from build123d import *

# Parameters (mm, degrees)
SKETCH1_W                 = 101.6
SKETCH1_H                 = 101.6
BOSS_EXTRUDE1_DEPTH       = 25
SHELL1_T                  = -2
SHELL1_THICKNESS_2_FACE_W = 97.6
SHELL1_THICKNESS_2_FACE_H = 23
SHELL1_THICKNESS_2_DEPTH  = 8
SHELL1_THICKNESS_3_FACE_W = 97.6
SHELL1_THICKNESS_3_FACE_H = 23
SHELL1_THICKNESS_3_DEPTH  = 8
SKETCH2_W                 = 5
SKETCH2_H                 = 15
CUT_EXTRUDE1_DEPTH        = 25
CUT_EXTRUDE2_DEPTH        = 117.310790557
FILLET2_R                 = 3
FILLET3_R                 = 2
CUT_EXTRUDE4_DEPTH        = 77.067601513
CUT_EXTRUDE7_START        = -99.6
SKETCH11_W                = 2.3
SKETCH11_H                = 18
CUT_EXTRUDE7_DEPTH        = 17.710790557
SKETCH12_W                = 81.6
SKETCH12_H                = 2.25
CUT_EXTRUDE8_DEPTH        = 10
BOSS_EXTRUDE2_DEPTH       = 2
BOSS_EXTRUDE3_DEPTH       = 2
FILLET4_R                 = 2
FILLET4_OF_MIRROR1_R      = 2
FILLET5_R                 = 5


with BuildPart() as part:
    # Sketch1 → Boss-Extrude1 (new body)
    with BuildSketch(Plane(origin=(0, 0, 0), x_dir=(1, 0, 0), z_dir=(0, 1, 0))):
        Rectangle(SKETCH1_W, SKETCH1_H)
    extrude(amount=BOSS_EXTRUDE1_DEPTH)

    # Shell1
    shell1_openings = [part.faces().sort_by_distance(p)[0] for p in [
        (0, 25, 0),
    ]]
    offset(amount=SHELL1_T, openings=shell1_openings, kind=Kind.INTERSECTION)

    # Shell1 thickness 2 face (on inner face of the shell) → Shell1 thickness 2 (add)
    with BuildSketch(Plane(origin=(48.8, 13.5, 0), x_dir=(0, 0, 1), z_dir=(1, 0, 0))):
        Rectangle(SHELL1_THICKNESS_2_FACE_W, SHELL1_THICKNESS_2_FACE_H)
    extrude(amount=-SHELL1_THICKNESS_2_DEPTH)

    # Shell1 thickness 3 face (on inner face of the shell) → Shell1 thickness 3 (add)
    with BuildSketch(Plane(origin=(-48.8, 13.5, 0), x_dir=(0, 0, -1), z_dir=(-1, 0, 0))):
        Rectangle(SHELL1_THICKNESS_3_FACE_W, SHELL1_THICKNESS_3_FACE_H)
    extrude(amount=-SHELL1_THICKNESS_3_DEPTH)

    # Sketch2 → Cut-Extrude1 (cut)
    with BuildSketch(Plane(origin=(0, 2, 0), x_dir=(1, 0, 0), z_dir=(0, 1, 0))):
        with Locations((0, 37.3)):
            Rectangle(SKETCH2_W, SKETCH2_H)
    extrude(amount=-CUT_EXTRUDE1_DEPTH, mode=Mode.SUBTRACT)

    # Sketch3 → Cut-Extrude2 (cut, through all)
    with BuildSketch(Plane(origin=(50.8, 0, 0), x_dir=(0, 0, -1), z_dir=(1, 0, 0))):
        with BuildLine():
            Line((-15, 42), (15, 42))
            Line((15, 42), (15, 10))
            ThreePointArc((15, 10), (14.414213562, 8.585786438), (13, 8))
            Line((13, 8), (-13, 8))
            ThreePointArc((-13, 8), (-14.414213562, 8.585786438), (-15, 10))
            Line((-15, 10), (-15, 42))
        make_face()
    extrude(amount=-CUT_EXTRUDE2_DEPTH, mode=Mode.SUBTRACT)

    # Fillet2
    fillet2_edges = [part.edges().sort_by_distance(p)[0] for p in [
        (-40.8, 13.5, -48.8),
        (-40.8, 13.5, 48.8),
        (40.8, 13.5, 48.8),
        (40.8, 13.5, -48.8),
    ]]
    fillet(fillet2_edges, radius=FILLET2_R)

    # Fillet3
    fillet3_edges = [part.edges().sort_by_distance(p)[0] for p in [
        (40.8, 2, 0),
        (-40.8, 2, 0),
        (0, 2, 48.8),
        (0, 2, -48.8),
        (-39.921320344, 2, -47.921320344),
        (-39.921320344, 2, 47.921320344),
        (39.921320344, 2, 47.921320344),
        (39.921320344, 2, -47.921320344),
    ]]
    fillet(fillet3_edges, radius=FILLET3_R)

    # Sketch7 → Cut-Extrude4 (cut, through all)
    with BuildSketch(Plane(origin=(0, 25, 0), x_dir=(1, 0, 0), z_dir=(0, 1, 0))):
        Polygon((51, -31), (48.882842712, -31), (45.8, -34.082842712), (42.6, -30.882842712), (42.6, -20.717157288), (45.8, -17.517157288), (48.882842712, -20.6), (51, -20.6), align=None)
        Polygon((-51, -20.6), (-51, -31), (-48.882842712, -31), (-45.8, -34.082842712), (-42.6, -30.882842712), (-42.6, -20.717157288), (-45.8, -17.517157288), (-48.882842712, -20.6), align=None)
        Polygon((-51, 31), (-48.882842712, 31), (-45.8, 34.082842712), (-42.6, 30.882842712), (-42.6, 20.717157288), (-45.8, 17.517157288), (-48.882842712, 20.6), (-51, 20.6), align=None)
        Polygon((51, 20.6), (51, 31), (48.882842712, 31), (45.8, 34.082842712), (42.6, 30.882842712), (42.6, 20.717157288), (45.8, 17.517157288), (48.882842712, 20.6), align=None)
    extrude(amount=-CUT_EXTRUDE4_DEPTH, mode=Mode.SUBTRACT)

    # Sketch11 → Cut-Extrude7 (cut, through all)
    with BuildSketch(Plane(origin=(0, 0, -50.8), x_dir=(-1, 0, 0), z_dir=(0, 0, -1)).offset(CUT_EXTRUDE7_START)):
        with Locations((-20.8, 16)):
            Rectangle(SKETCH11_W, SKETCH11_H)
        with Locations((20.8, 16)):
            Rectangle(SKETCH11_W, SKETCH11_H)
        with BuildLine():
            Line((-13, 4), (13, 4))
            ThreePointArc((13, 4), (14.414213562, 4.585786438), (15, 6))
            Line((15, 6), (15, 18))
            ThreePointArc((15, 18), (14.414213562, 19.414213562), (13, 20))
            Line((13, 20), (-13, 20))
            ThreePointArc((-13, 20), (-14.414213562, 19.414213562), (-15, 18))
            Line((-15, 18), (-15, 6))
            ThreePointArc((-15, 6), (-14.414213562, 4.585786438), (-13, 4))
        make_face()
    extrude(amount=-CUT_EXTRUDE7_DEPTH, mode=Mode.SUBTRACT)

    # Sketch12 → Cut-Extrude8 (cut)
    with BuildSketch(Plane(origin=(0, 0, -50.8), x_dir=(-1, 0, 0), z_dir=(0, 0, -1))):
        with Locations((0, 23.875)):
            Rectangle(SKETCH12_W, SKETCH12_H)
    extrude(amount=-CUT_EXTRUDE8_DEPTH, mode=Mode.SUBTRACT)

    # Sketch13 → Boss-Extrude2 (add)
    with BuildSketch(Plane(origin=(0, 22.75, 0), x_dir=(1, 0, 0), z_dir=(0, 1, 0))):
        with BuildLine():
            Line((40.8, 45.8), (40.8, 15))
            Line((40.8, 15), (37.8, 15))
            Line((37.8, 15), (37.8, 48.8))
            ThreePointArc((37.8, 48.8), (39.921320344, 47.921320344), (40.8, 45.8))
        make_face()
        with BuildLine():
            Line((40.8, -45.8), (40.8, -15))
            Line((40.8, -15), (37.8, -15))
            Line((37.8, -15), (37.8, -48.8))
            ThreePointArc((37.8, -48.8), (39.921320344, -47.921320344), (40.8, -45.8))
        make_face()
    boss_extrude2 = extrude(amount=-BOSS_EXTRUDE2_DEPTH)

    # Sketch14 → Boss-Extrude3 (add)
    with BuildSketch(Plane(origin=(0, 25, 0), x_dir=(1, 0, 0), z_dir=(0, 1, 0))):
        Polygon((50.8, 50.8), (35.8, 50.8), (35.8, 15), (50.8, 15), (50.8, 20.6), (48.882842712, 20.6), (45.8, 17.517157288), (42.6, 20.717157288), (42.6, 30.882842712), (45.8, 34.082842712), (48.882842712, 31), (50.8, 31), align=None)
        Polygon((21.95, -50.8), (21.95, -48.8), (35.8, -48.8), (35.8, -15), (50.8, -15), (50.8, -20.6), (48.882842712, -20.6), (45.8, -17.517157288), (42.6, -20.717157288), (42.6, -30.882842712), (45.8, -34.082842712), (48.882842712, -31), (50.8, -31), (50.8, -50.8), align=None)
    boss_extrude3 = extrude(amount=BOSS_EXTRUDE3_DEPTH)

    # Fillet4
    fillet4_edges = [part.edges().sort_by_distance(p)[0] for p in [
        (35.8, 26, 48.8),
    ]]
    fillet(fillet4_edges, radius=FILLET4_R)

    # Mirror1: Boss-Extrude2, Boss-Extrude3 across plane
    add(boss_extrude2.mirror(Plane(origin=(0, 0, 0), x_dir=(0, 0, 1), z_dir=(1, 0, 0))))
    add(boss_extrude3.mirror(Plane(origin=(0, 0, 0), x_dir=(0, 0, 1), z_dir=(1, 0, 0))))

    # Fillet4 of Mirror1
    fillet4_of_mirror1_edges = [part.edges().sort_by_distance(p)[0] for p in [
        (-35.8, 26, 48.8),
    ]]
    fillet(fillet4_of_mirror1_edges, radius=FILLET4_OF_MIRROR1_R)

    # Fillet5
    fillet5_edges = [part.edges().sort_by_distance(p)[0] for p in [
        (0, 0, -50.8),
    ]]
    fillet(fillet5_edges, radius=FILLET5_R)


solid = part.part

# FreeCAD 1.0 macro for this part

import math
import FreeCAD as App
import Part
import Sketcher
Q = App.Units.Quantity


def edges_at(feature, points):
    """Names of the edges that pass closest to the given points."""
    edges = feature.Shape.Edges
    near = lambda p: min(range(len(edges)), key=lambda i: edges[i].distToShape(Part.Vertex(*p))[0])
    return sorted({f"Edge{near(p) + 1}" for p in points})


def faces_at(feature, points):
    """Names of the faces that lie closest to the given points."""
    faces = feature.Shape.Faces
    near = lambda p: min(range(len(faces)), key=lambda i: faces[i].distToShape(Part.Vertex(*p))[0])
    return sorted({f"Face{near(p) + 1}" for p in points})

doc = App.newDocument("Part")
params = doc.addObject("Spreadsheet::Sheet", "Params")
for row, (alias, value) in enumerate([
    ("sketch1_width", "101.6 mm"),
    ("pad1_length", "25 mm"),
    ("thickness_wall", "2 mm"),
    ("sketch2_width", "23 mm"),
    ("sketch2_height", "97.6 mm"),
    ("pad2_length", "8 mm"),
    ("sketch3_width", "23 mm"),
    ("sketch3_height", "97.6 mm"),
    ("pad3_length", "8 mm"),
    ("sketch4_width", "5 mm"),
    ("sketch4_height", "15 mm"),
    ("pocket1_length", "25 mm"),
    ("sketch5_radius", "2 mm"),
    ("sketch5_width", "32 mm"),
    ("sketch5_height", "30 mm"),
    ("fillet_radius", "3 mm"),
    ("fillet2_radius", "2 mm"),
    ("sketch6_height", "10.4 mm"),
    ("sketch7_radius", "2 mm"),
    ("sketch7_width", "26 mm"),
    ("sketch7_height", "18 mm"),
    ("sketch7_height2", "12 mm"),
    ("sketch7_width2", "2.3 mm"),
    ("sketch8_width", "81.6 mm"),
    ("sketch8_height", "2.25 mm"),
    ("pocket5_length", "10 mm"),
    ("sketch9_radius", "3 mm"),
    ("sketch9_height", "30.8 mm"),
    ("pad4_length", "2 mm"),
    ("sketch10_width", "15 mm"),
    ("sketch10_height", "2 mm"),
    ("sketch10_height2", "35.8 mm"),
    ("sketch10_height3", "5.6 mm"),
    ("sketch10_height4", "19.8 mm"),
    ("pad5_length", "2 mm"),
    ("fillet3_radius", "2 mm"),
    ("fillet4_radius", "2 mm"),
    ("fillet5_radius", "5 mm"),
], start=1):
    params.set(f"A{row}", alias)
    params.set(f"B{row}", "=" + value)
    params.setAlias(f"B{row}", alias)

body = doc.addObject("PartDesign::Body", "Body")

# Sketch on XZ plane
sketch1 = body.newObject("Sketcher::SketchObject", "Sketch")
sketch1.AttachmentSupport = (doc.getObject("XZ_Plane"), [""])
sketch1.MapMode = "FlatFace"
sketch1.addGeometry([
    Part.LineSegment(App.Vector(-50.8, -50.8, 0), App.Vector(-50.8, 50.8, 0)),
    Part.LineSegment(App.Vector(-50.8, 50.8, 0), App.Vector(50.8, 50.8, 0)),
    Part.LineSegment(App.Vector(50.8, 50.8, 0), App.Vector(50.8, -50.8, 0)),
    Part.LineSegment(App.Vector(50.8, -50.8, 0), App.Vector(-50.8, -50.8, 0)),
], False)
sketch1.addConstraint([
    Sketcher.Constraint("Coincident", 0, 2, 1, 1),
    Sketcher.Constraint("Coincident", 1, 2, 2, 1),
    Sketcher.Constraint("Coincident", 2, 2, 3, 1),
    Sketcher.Constraint("Coincident", 3, 2, 0, 1),
    Sketcher.Constraint("Vertical", 0),
    Sketcher.Constraint("Horizontal", 1),
    Sketcher.Constraint("Vertical", 2),
    Sketcher.Constraint("Horizontal", 3),
    Sketcher.Constraint("Symmetric", 0, 2, 2, 2, -1, 1),
    Sketcher.Constraint("Equal", 3, 0),
    Sketcher.Constraint("DistanceX", 1, 1, 1, 2, Q("101.6 mm")),
])
sketch1.setExpression("Constraints[10]", "Params.sketch1_width")
pad1 = body.newObject("PartDesign::Pad", "Pad")
pad1.Profile = sketch1
pad1.setExpression("Length", "Params.pad1_length")
pad1.Reversed = True
doc.recompute()

thickness = body.newObject("PartDesign::Thickness", "Thickness")
thickness.Base = (pad1, faces_at(pad1, [(0, 25, 0)]))
thickness.setExpression("Value", "Params.thickness_wall")
thickness.Reversed = True
thickness.Join = "Intersection"

# Sketch on YZ plane
sketch2 = body.newObject("Sketcher::SketchObject", "Sketch001")
sketch2.AttachmentSupport = (doc.getObject("YZ_Plane"), [""])
sketch2.MapMode = "FlatFace"
sketch2.AttachmentOffset = App.Placement(App.Vector(0, 0, 48.8), App.Rotation())
sketch2.addGeometry([
    Part.LineSegment(App.Vector(2, -48.8, 0), App.Vector(25, -48.8, 0)),
    Part.LineSegment(App.Vector(25, -48.8, 0), App.Vector(25, 48.8, 0)),
    Part.LineSegment(App.Vector(25, 48.8, 0), App.Vector(2, 48.8, 0)),
    Part.LineSegment(App.Vector(2, 48.8, 0), App.Vector(2, -48.8, 0)),
], False)
sketch2.addConstraint([
    Sketcher.Constraint("Coincident", 0, 2, 1, 1),
    Sketcher.Constraint("Coincident", 1, 2, 2, 1),
    Sketcher.Constraint("Coincident", 2, 2, 3, 1),
    Sketcher.Constraint("Coincident", 3, 2, 0, 1),
    Sketcher.Constraint("Horizontal", 0),
    Sketcher.Constraint("Vertical", 1),
    Sketcher.Constraint("Horizontal", 2),
    Sketcher.Constraint("Vertical", 3),
    Sketcher.Constraint("DistanceX", 0, 1, 0, 2, Q("23 mm")),
    Sketcher.Constraint("DistanceY", 1, 1, 1, 2, Q("97.6 mm")),
    Sketcher.Constraint("DistanceX", -1, 1, 0, 2, Q("25 mm")),
    Sketcher.Constraint("DistanceY", 0, 2, -1, 1, Q("48.8 mm")),
])
sketch2.setExpression("Constraints[8]", "Params.sketch2_width")
sketch2.setExpression("Constraints[9]", "Params.sketch2_height")
pad2 = body.newObject("PartDesign::Pad", "Pad001")
pad2.Profile = sketch2
pad2.setExpression("Length", "Params.pad2_length")
pad2.Reversed = True

# Sketch on YZ plane
sketch3 = body.newObject("Sketcher::SketchObject", "Sketch002")
sketch3.AttachmentSupport = (doc.getObject("YZ_Plane"), [""])
sketch3.MapMode = "FlatFace"
sketch3.AttachmentOffset = App.Placement(App.Vector(0, 0, -48.8), App.Rotation())
sketch3.addGeometry([
    Part.LineSegment(App.Vector(2, 48.8, 0), App.Vector(25, 48.8, 0)),
    Part.LineSegment(App.Vector(25, 48.8, 0), App.Vector(25, -48.8, 0)),
    Part.LineSegment(App.Vector(25, -48.8, 0), App.Vector(2, -48.8, 0)),
    Part.LineSegment(App.Vector(2, -48.8, 0), App.Vector(2, 48.8, 0)),
], False)
sketch3.addConstraint([
    Sketcher.Constraint("Coincident", 0, 2, 1, 1),
    Sketcher.Constraint("Coincident", 1, 2, 2, 1),
    Sketcher.Constraint("Coincident", 2, 2, 3, 1),
    Sketcher.Constraint("Coincident", 3, 2, 0, 1),
    Sketcher.Constraint("Horizontal", 0),
    Sketcher.Constraint("Vertical", 1),
    Sketcher.Constraint("Horizontal", 2),
    Sketcher.Constraint("Vertical", 3),
    Sketcher.Constraint("DistanceX", 0, 1, 0, 2, Q("23 mm")),
    Sketcher.Constraint("DistanceY", 1, 2, 1, 1, Q("97.6 mm")),
    Sketcher.Constraint("DistanceX", -1, 1, 0, 2, Q("25 mm")),
    Sketcher.Constraint("DistanceY", -1, 1, 0, 2, Q("48.8 mm")),
])
sketch3.setExpression("Constraints[8]", "Params.sketch3_width")
sketch3.setExpression("Constraints[9]", "Params.sketch3_height")
pad3 = body.newObject("PartDesign::Pad", "Pad002")
pad3.Profile = sketch3
pad3.setExpression("Length", "Params.pad3_length")

# Sketch on XZ plane
sketch4 = body.newObject("Sketcher::SketchObject", "Sketch003")
sketch4.AttachmentSupport = (doc.getObject("XZ_Plane"), [""])
sketch4.MapMode = "FlatFace"
sketch4.AttachmentOffset = App.Placement(App.Vector(0, 0, -2), App.Rotation())
sketch4.addGeometry([
    Part.LineSegment(App.Vector(-2.5, -44.8, 0), App.Vector(-2.5, -29.8, 0)),
    Part.LineSegment(App.Vector(-2.5, -29.8, 0), App.Vector(2.5, -29.8, 0)),
    Part.LineSegment(App.Vector(2.5, -29.8, 0), App.Vector(2.5, -44.8, 0)),
    Part.LineSegment(App.Vector(2.5, -44.8, 0), App.Vector(-2.5, -44.8, 0)),
], False)
sketch4.addConstraint([
    Sketcher.Constraint("Coincident", 0, 2, 1, 1),
    Sketcher.Constraint("Coincident", 1, 2, 2, 1),
    Sketcher.Constraint("Coincident", 2, 2, 3, 1),
    Sketcher.Constraint("Coincident", 3, 2, 0, 1),
    Sketcher.Constraint("Vertical", 0),
    Sketcher.Constraint("Horizontal", 1),
    Sketcher.Constraint("Vertical", 2),
    Sketcher.Constraint("Horizontal", 3),
    Sketcher.Constraint("DistanceX", 1, 1, 1, 2, Q("5 mm")),
    Sketcher.Constraint("DistanceY", 0, 1, 0, 2, Q("15 mm")),
    Sketcher.Constraint("DistanceX", 0, 2, -1, 1, Q("2.5 mm")),
    Sketcher.Constraint("DistanceY", 0, 2, -1, 1, Q("29.8 mm")),
])
sketch4.setExpression("Constraints[8]", "Params.sketch4_width")
sketch4.setExpression("Constraints[9]", "Params.sketch4_height")
pocket1 = body.newObject("PartDesign::Pocket", "Pocket")
pocket1.Profile = sketch4
pocket1.setExpression("Length", "Params.pocket1_length")
pocket1.Reversed = True

# Sketch on YZ plane
sketch5 = body.newObject("Sketcher::SketchObject", "Sketch004")
sketch5.AttachmentSupport = (doc.getObject("YZ_Plane"), [""])
sketch5.MapMode = "FlatFace"
sketch5.AttachmentOffset = App.Placement(App.Vector(0, 0, 50.8), App.Rotation())
sketch5.addGeometry([
    Part.LineSegment(App.Vector(42, -15, 0), App.Vector(42, 15, 0)),  # 0
    Part.LineSegment(App.Vector(42, 15, 0), App.Vector(10, 15, 0)),  # 1
    Part.ArcOfCircle(Part.Circle(App.Vector(10, 13, 0), App.Vector(0, 0, 1), 2), math.radians(90), math.radians(180)),  # 2
    Part.LineSegment(App.Vector(8, 13, 0), App.Vector(8, -13, 0)),  # 3
    Part.ArcOfCircle(Part.Circle(App.Vector(10, -13, 0), App.Vector(0, 0, 1), 2), math.radians(-180), math.radians(-90)),  # 4
    Part.LineSegment(App.Vector(10, -15, 0), App.Vector(42, -15, 0)),  # 5
], False)
sketch5.addConstraint([
    Sketcher.Constraint("Coincident", 0, 2, 1, 1),
    Sketcher.Constraint("Tangent", 1, 2, 2, 1),
    Sketcher.Constraint("Tangent", 2, 2, 3, 1),
    Sketcher.Constraint("Tangent", 3, 2, 4, 1),
    Sketcher.Constraint("Tangent", 4, 2, 5, 1),
    Sketcher.Constraint("Coincident", 5, 2, 0, 1),
    Sketcher.Constraint("Vertical", 0),
    Sketcher.Constraint("Horizontal", 1),
    Sketcher.Constraint("Vertical", 3),
    Sketcher.Constraint("Horizontal", 5),
    Sketcher.Constraint("Equal", 2, 4),
    Sketcher.Constraint("Radius", 2, Q("2 mm")),
    Sketcher.Constraint("DistanceX", 1, 2, 1, 1, Q("32 mm")),
    Sketcher.Constraint("DistanceY", 0, 1, 0, 2, Q("30 mm")),
    Sketcher.Constraint("DistanceX", -1, 1, 2, 3, Q("10 mm")),
    Sketcher.Constraint("DistanceY", -1, 1, 2, 3, Q("13 mm")),
])
sketch5.setExpression("Constraints[11]", "Params.sketch5_radius")
sketch5.setExpression("Constraints[12]", "Params.sketch5_width")
sketch5.setExpression("Constraints[13]", "Params.sketch5_height")
pocket2 = body.newObject("PartDesign::Pocket", "Pocket001")
pocket2.Profile = sketch5
pocket2.Type = "ThroughAll"
doc.recompute()

fillet = body.newObject("PartDesign::Fillet", "Fillet")
fillet.Base = (pocket2, edges_at(pocket2, [
    (-40.8, 13.5, -48.8),
    (-40.8, 13.5, 48.8),
    (40.8, 13.5, 48.8),
    (40.8, 13.5, -48.8),
]))
fillet.setExpression("Radius", "Params.fillet_radius")
doc.recompute()

fillet2 = body.newObject("PartDesign::Fillet", "Fillet001")
fillet2.Base = (fillet, edges_at(fillet, [
    (40.8, 2, 0),
    (-40.8, 2, 0),
    (0, 2, 48.8),
    (0, 2, -48.8),
    (-39.921, 2, -47.921),
    (-39.921, 2, 47.921),
    (39.921, 2, 47.921),
    (39.921, 2, -47.921),
]))
fillet2.setExpression("Radius", "Params.fillet2_radius")

# Sketch on XZ plane
sketch6 = body.newObject("Sketcher::SketchObject", "Sketch005")
sketch6.AttachmentSupport = (doc.getObject("XZ_Plane"), [""])
sketch6.MapMode = "FlatFace"
sketch6.AttachmentOffset = App.Placement(App.Vector(0, 0, -25), App.Rotation())
sketch6.addGeometry([
    Part.LineSegment(App.Vector(48.882843, 31, 0), App.Vector(51, 31, 0)),  # 0
    Part.LineSegment(App.Vector(51, 31, 0), App.Vector(51, 20.6, 0)),  # 1
    Part.LineSegment(App.Vector(51, 20.6, 0), App.Vector(48.882843, 20.6, 0)),  # 2
    Part.LineSegment(App.Vector(48.882843, 20.6, 0), App.Vector(45.8, 17.517157, 0)),  # 3
    Part.LineSegment(App.Vector(45.8, 17.517157, 0), App.Vector(42.6, 20.717157, 0)),  # 4
    Part.LineSegment(App.Vector(42.6, 20.717157, 0), App.Vector(42.6, 30.882843, 0)),  # 5
    Part.LineSegment(App.Vector(42.6, 30.882843, 0), App.Vector(45.8, 34.082843, 0)),  # 6
    Part.LineSegment(App.Vector(45.8, 34.082843, 0), App.Vector(48.882843, 31, 0)),  # 7
    Part.LineSegment(App.Vector(-51, 20.6, 0), App.Vector(-51, 31, 0)),  # 8
    Part.LineSegment(App.Vector(-51, 31, 0), App.Vector(-48.882843, 31, 0)),  # 9
    Part.LineSegment(App.Vector(-48.882843, 31, 0), App.Vector(-45.8, 34.082843, 0)),  # 10
    Part.LineSegment(App.Vector(-45.8, 34.082843, 0), App.Vector(-42.6, 30.882843, 0)),  # 11
    Part.LineSegment(App.Vector(-42.6, 30.882843, 0), App.Vector(-42.6, 20.717157, 0)),  # 12
    Part.LineSegment(App.Vector(-42.6, 20.717157, 0), App.Vector(-45.8, 17.517157, 0)),  # 13
    Part.LineSegment(App.Vector(-45.8, 17.517157, 0), App.Vector(-48.882843, 20.6, 0)),  # 14
    Part.LineSegment(App.Vector(-48.882843, 20.6, 0), App.Vector(-51, 20.6, 0)),  # 15
    Part.LineSegment(App.Vector(-48.882843, -31, 0), App.Vector(-51, -31, 0)),  # 16
    Part.LineSegment(App.Vector(-51, -31, 0), App.Vector(-51, -20.6, 0)),  # 17
    Part.LineSegment(App.Vector(-51, -20.6, 0), App.Vector(-48.882843, -20.6, 0)),  # 18
    Part.LineSegment(App.Vector(-48.882843, -20.6, 0), App.Vector(-45.8, -17.517157, 0)),  # 19
    Part.LineSegment(App.Vector(-45.8, -17.517157, 0), App.Vector(-42.6, -20.717157, 0)),  # 20
    Part.LineSegment(App.Vector(-42.6, -20.717157, 0), App.Vector(-42.6, -30.882843, 0)),  # 21
    Part.LineSegment(App.Vector(-42.6, -30.882843, 0), App.Vector(-45.8, -34.082843, 0)),  # 22
    Part.LineSegment(App.Vector(-45.8, -34.082843, 0), App.Vector(-48.882843, -31, 0)),  # 23
    Part.LineSegment(App.Vector(51, -20.6, 0), App.Vector(51, -31, 0)),  # 24
    Part.LineSegment(App.Vector(51, -31, 0), App.Vector(48.882843, -31, 0)),  # 25
    Part.LineSegment(App.Vector(48.882843, -31, 0), App.Vector(45.8, -34.082843, 0)),  # 26
    Part.LineSegment(App.Vector(45.8, -34.082843, 0), App.Vector(42.6, -30.882843, 0)),  # 27
    Part.LineSegment(App.Vector(42.6, -30.882843, 0), App.Vector(42.6, -20.717157, 0)),  # 28
    Part.LineSegment(App.Vector(42.6, -20.717157, 0), App.Vector(45.8, -17.517157, 0)),  # 29
    Part.LineSegment(App.Vector(45.8, -17.517157, 0), App.Vector(48.882843, -20.6, 0)),  # 30
    Part.LineSegment(App.Vector(48.882843, -20.6, 0), App.Vector(51, -20.6, 0)),  # 31
], False)
sketch6.addConstraint([
    Sketcher.Constraint("Coincident", 0, 2, 1, 1),
    Sketcher.Constraint("Coincident", 1, 2, 2, 1),
    Sketcher.Constraint("Coincident", 2, 2, 3, 1),
    Sketcher.Constraint("Coincident", 3, 2, 4, 1),
    Sketcher.Constraint("Coincident", 4, 2, 5, 1),
    Sketcher.Constraint("Coincident", 5, 2, 6, 1),
    Sketcher.Constraint("Coincident", 6, 2, 7, 1),
    Sketcher.Constraint("Coincident", 7, 2, 0, 1),
    Sketcher.Constraint("Coincident", 8, 2, 9, 1),
    Sketcher.Constraint("Coincident", 9, 2, 10, 1),
    Sketcher.Constraint("Coincident", 10, 2, 11, 1),
    Sketcher.Constraint("Coincident", 11, 2, 12, 1),
    Sketcher.Constraint("Coincident", 12, 2, 13, 1),
    Sketcher.Constraint("Coincident", 13, 2, 14, 1),
    Sketcher.Constraint("Coincident", 14, 2, 15, 1),
    Sketcher.Constraint("Coincident", 15, 2, 8, 1),
    Sketcher.Constraint("Coincident", 16, 2, 17, 1),
    Sketcher.Constraint("Coincident", 17, 2, 18, 1),
    Sketcher.Constraint("Coincident", 18, 2, 19, 1),
    Sketcher.Constraint("Coincident", 19, 2, 20, 1),
    Sketcher.Constraint("Coincident", 20, 2, 21, 1),
    Sketcher.Constraint("Coincident", 21, 2, 22, 1),
    Sketcher.Constraint("Coincident", 22, 2, 23, 1),
    Sketcher.Constraint("Coincident", 23, 2, 16, 1),
    Sketcher.Constraint("Coincident", 24, 2, 25, 1),
    Sketcher.Constraint("Coincident", 25, 2, 26, 1),
    Sketcher.Constraint("Coincident", 26, 2, 27, 1),
    Sketcher.Constraint("Coincident", 27, 2, 28, 1),
    Sketcher.Constraint("Coincident", 28, 2, 29, 1),
    Sketcher.Constraint("Coincident", 29, 2, 30, 1),
    Sketcher.Constraint("Coincident", 30, 2, 31, 1),
    Sketcher.Constraint("Coincident", 31, 2, 24, 1),
    Sketcher.Constraint("Horizontal", 0),
    Sketcher.Constraint("Vertical", 1),
    Sketcher.Constraint("Horizontal", 2),
    Sketcher.Constraint("Vertical", 5),
    Sketcher.Constraint("Vertical", 8),
    Sketcher.Constraint("Horizontal", 9),
    Sketcher.Constraint("Vertical", 12),
    Sketcher.Constraint("Horizontal", 15),
    Sketcher.Constraint("Horizontal", 16),
    Sketcher.Constraint("Vertical", 17),
    Sketcher.Constraint("Horizontal", 18),
    Sketcher.Constraint("Vertical", 21),
    Sketcher.Constraint("Vertical", 24),
    Sketcher.Constraint("Horizontal", 25),
    Sketcher.Constraint("Vertical", 28),
    Sketcher.Constraint("Horizontal", 31),
    Sketcher.Constraint("Symmetric", 0, 2, 16, 2, -1, 1),
    Sketcher.Constraint("Symmetric", 2, 2, 18, 2, -1, 1),
    Sketcher.Constraint("Symmetric", 3, 2, 19, 2, -1, 1),
    Sketcher.Constraint("Symmetric", 4, 2, 20, 2, -1, 1),
    Sketcher.Constraint("Symmetric", 6, 2, 22, 2, -1, 1),
    Sketcher.Constraint("Symmetric", 8, 2, 24, 2, -1, 1),
    Sketcher.Constraint("Symmetric", 10, 2, 26, 2, -1, 1),
    Sketcher.Constraint("Symmetric", 11, 2, 27, 2, -1, 1),
    Sketcher.Constraint("Symmetric", 13, 2, 29, 2, -1, 1),
    Sketcher.Constraint("Symmetric", 14, 2, 30, 2, -1, 1),
    Sketcher.Constraint("Symmetric", 0, 2, 8, 2, -2),
    Sketcher.Constraint("Symmetric", 6, 2, 10, 2, -2),
    Sketcher.Constraint("Symmetric", 5, 2, 11, 2, -2),
    Sketcher.Constraint("Symmetric", 3, 2, 13, 2, -2),
    Sketcher.Constraint("Symmetric", 2, 2, 14, 2, -2),
    Sketcher.Constraint("Perpendicular", 3, 4),
    Sketcher.Constraint("Perpendicular", 4, 6),
    Sketcher.Constraint("Perpendicular", 6, 7),
    Sketcher.Constraint("Perpendicular", 7, 10),
    Sketcher.Constraint("Perpendicular", 10, 11),
    Sketcher.Constraint("Perpendicular", 11, 13),
    Sketcher.Constraint("Perpendicular", 20, 22),
    Sketcher.Constraint("Perpendicular", 22, 23),
    Sketcher.Constraint("Perpendicular", 23, 26),
    Sketcher.Constraint("Perpendicular", 27, 29),
    Sketcher.Constraint("Vertical", 3, 2, 6, 2),
    Sketcher.Constraint("Vertical", 2, 2, 7, 2),
    Sketcher.Constraint("DistanceY", 1, 2, 1, 1, Q("10.4 mm")),
    Sketcher.Constraint("DistanceX", -1, 1, 0, 2, Q("51 mm")),
    Sketcher.Constraint("DistanceY", -1, 1, 0, 2, Q("31 mm")),
    Sketcher.Constraint("DistanceX", -1, 1, 3, 2, Q("45.8 mm")),
    Sketcher.Constraint("DistanceX", -1, 1, 4, 2, Q("42.6 mm")),
    Sketcher.Constraint("DistanceX", 0, 1, 0, 2, Q("2.117157 mm")),
])
sketch6.setExpression("Constraints[75]", "Params.sketch6_height")
pocket3 = body.newObject("PartDesign::Pocket", "Pocket002")
pocket3.Profile = sketch6
pocket3.Type = "ThroughAll"
pocket3.Reversed = True

# Sketch on XY plane
sketch7 = body.newObject("Sketcher::SketchObject", "Sketch006")
sketch7.AttachmentSupport = (doc.getObject("XY_Plane"), [""])
sketch7.MapMode = "FlatFace"
sketch7.AttachmentOffset = App.Placement(App.Vector(0, 0, 48.8), App.Rotation())
sketch7.addGeometry([
    Part.LineSegment(App.Vector(21.95, 25, 0), App.Vector(21.95, 7, 0)),  # 0
    Part.LineSegment(App.Vector(21.95, 7, 0), App.Vector(19.65, 7, 0)),  # 1
    Part.LineSegment(App.Vector(19.65, 7, 0), App.Vector(19.65, 25, 0)),  # 2
    Part.LineSegment(App.Vector(19.65, 25, 0), App.Vector(21.95, 25, 0)),  # 3
    Part.LineSegment(App.Vector(-19.65, 25, 0), App.Vector(-19.65, 7, 0)),  # 4
    Part.LineSegment(App.Vector(-19.65, 7, 0), App.Vector(-21.95, 7, 0)),  # 5
    Part.LineSegment(App.Vector(-21.95, 7, 0), App.Vector(-21.95, 25, 0)),  # 6
    Part.LineSegment(App.Vector(-21.95, 25, 0), App.Vector(-19.65, 25, 0)),  # 7
    Part.LineSegment(App.Vector(13, 4, 0), App.Vector(-13, 4, 0)),  # 8
    Part.ArcOfCircle(Part.Circle(App.Vector(-13, 6, 0), App.Vector(0, 0, 1), 2), math.radians(-180), math.radians(-90)),  # 9
    Part.LineSegment(App.Vector(-15, 6, 0), App.Vector(-15, 18, 0)),  # 10
    Part.ArcOfCircle(Part.Circle(App.Vector(-13, 18, 0), App.Vector(0, 0, 1), 2), math.radians(90), math.radians(180)),  # 11
    Part.LineSegment(App.Vector(-13, 20, 0), App.Vector(13, 20, 0)),  # 12
    Part.ArcOfCircle(Part.Circle(App.Vector(13, 18, 0), App.Vector(0, 0, 1), 2), math.radians(0), math.radians(90)),  # 13
    Part.LineSegment(App.Vector(15, 18, 0), App.Vector(15, 6, 0)),  # 14
    Part.ArcOfCircle(Part.Circle(App.Vector(13, 6, 0), App.Vector(0, 0, 1), 2), math.radians(-90), math.radians(0)),  # 15
], False)
sketch7.addConstraint([
    Sketcher.Constraint("Coincident", 0, 2, 1, 1),
    Sketcher.Constraint("Coincident", 1, 2, 2, 1),
    Sketcher.Constraint("Coincident", 2, 2, 3, 1),
    Sketcher.Constraint("Coincident", 3, 2, 0, 1),
    Sketcher.Constraint("Coincident", 4, 2, 5, 1),
    Sketcher.Constraint("Coincident", 5, 2, 6, 1),
    Sketcher.Constraint("Coincident", 6, 2, 7, 1),
    Sketcher.Constraint("Coincident", 7, 2, 4, 1),
    Sketcher.Constraint("Tangent", 8, 2, 9, 2),
    Sketcher.Constraint("Tangent", 9, 1, 10, 1),
    Sketcher.Constraint("Tangent", 10, 2, 11, 2),
    Sketcher.Constraint("Tangent", 11, 1, 12, 1),
    Sketcher.Constraint("Tangent", 12, 2, 13, 2),
    Sketcher.Constraint("Tangent", 13, 1, 14, 1),
    Sketcher.Constraint("Tangent", 14, 2, 15, 2),
    Sketcher.Constraint("Tangent", 15, 1, 8, 1),
    Sketcher.Constraint("Vertical", 0),
    Sketcher.Constraint("Horizontal", 1),
    Sketcher.Constraint("Vertical", 2),
    Sketcher.Constraint("Horizontal", 3),
    Sketcher.Constraint("Vertical", 4),
    Sketcher.Constraint("Horizontal", 5),
    Sketcher.Constraint("Vertical", 6),
    Sketcher.Constraint("Horizontal", 7),
    Sketcher.Constraint("Horizontal", 8),
    Sketcher.Constraint("Vertical", 10),
    Sketcher.Constraint("Horizontal", 12),
    Sketcher.Constraint("Vertical", 14),
    Sketcher.Constraint("Equal", 9, 11),
    Sketcher.Constraint("Equal", 11, 13),
    Sketcher.Constraint("Equal", 13, 15),
    Sketcher.Constraint("Symmetric", 1, 2, 4, 2, -2),
    Sketcher.Constraint("Symmetric", 3, 2, 6, 2, -2),
    Sketcher.Constraint("Radius", 9, Q("2 mm")),
    Sketcher.Constraint("DistanceX", 8, 2, 8, 1, Q("26 mm")),
    Sketcher.Constraint("DistanceY", 0, 2, 0, 1, Q("18 mm")),
    Sketcher.Constraint("DistanceY", 10, 1, 10, 2, Q("12 mm")),
    Sketcher.Constraint("DistanceX", 1, 2, 1, 1, Q("2.3 mm")),
    Sketcher.Constraint("DistanceX", 9, 3, -1, 1, Q("13 mm")),
    Sketcher.Constraint("DistanceY", -1, 1, 9, 3, Q("6 mm")),
    Sketcher.Constraint("DistanceY", -1, 1, 0, 2, Q("7 mm")),
    Sketcher.Constraint("DistanceX", 4, 2, 1, 2, Q("39.3 mm")),
])
sketch7.setExpression("Constraints[33]", "Params.sketch7_radius")
sketch7.setExpression("Constraints[34]", "Params.sketch7_width")
sketch7.setExpression("Constraints[35]", "Params.sketch7_height")
sketch7.setExpression("Constraints[36]", "Params.sketch7_height2")
sketch7.setExpression("Constraints[37]", "Params.sketch7_width2")
pocket4 = body.newObject("PartDesign::Pocket", "Pocket003")
pocket4.Profile = sketch7
pocket4.Type = "ThroughAll"
pocket4.Reversed = True

# Sketch on XY plane
sketch8 = body.newObject("Sketcher::SketchObject", "Sketch007")
sketch8.AttachmentSupport = (doc.getObject("XY_Plane"), [""])
sketch8.MapMode = "FlatFace"
sketch8.AttachmentOffset = App.Placement(App.Vector(0, 0, -50.8), App.Rotation())
sketch8.addGeometry([
    Part.LineSegment(App.Vector(40.8, 25, 0), App.Vector(40.8, 22.75, 0)),
    Part.LineSegment(App.Vector(40.8, 22.75, 0), App.Vector(-40.8, 22.75, 0)),
    Part.LineSegment(App.Vector(-40.8, 22.75, 0), App.Vector(-40.8, 25, 0)),
    Part.LineSegment(App.Vector(-40.8, 25, 0), App.Vector(40.8, 25, 0)),
], False)
sketch8.addConstraint([
    Sketcher.Constraint("Coincident", 0, 2, 1, 1),
    Sketcher.Constraint("Coincident", 1, 2, 2, 1),
    Sketcher.Constraint("Coincident", 2, 2, 3, 1),
    Sketcher.Constraint("Coincident", 3, 2, 0, 1),
    Sketcher.Constraint("Vertical", 0),
    Sketcher.Constraint("Horizontal", 1),
    Sketcher.Constraint("Vertical", 2),
    Sketcher.Constraint("Horizontal", 3),
    Sketcher.Constraint("DistanceX", 1, 2, 1, 1, Q("81.6 mm")),
    Sketcher.Constraint("DistanceY", -1, 1, 2, 2, Q("25 mm")),
    Sketcher.Constraint("DistanceY", 0, 2, 0, 1, Q("2.25 mm")),
    Sketcher.Constraint("DistanceX", -1, 1, 0, 2, Q("40.8 mm")),
])
sketch8.setExpression("Constraints[8]", "Params.sketch8_width")
sketch8.setExpression("Constraints[10]", "Params.sketch8_height")
pocket5 = body.newObject("PartDesign::Pocket", "Pocket004")
pocket5.Profile = sketch8
pocket5.setExpression("Length", "Params.pocket5_length")
pocket5.Reversed = True

# Sketch on XZ plane
sketch9 = body.newObject("Sketcher::SketchObject", "Sketch008")
sketch9.AttachmentSupport = (doc.getObject("XZ_Plane"), [""])
sketch9.MapMode = "FlatFace"
sketch9.AttachmentOffset = App.Placement(App.Vector(0, 0, -22.75), App.Rotation())
sketch9.addGeometry([
    Part.LineSegment(App.Vector(40.8, -15, 0), App.Vector(40.8, -45.8, 0)),  # 0
    Part.ArcOfCircle(Part.Circle(App.Vector(37.8, -45.8, 0), App.Vector(0, 0, 1), 3), math.radians(-90), math.radians(0)),  # 1
    Part.LineSegment(App.Vector(37.8, -48.8, 0), App.Vector(37.8, -15, 0)),  # 2
    Part.LineSegment(App.Vector(37.8, -15, 0), App.Vector(40.8, -15, 0)),  # 3
    Part.LineSegment(App.Vector(40.8, 45.8, 0), App.Vector(40.8, 15, 0)),  # 4
    Part.LineSegment(App.Vector(40.8, 15, 0), App.Vector(37.8, 15, 0)),  # 5
    Part.LineSegment(App.Vector(37.8, 15, 0), App.Vector(37.8, 48.8, 0)),  # 6
    Part.ArcOfCircle(Part.Circle(App.Vector(37.8, 45.8, 0), App.Vector(0, 0, 1), 3), math.radians(0), math.radians(90)),  # 7
], False)
sketch9.addConstraint([
    Sketcher.Constraint("Tangent", 0, 2, 1, 2),
    Sketcher.Constraint("Coincident", 1, 1, 2, 1),
    Sketcher.Constraint("Coincident", 2, 2, 3, 1),
    Sketcher.Constraint("Coincident", 3, 2, 0, 1),
    Sketcher.Constraint("Coincident", 4, 2, 5, 1),
    Sketcher.Constraint("Coincident", 5, 2, 6, 1),
    Sketcher.Constraint("Coincident", 6, 2, 7, 2),
    Sketcher.Constraint("Tangent", 7, 1, 4, 1),
    Sketcher.Constraint("Vertical", 0),
    Sketcher.Constraint("Vertical", 2),
    Sketcher.Constraint("Horizontal", 3),
    Sketcher.Constraint("Vertical", 4),
    Sketcher.Constraint("Horizontal", 5),
    Sketcher.Constraint("Vertical", 6),
    Sketcher.Constraint("Equal", 1, 7),
    Sketcher.Constraint("Symmetric", 1, 3, 7, 3, -1),
    Sketcher.Constraint("Symmetric", 2, 2, 5, 2, -1),
    Sketcher.Constraint("Vertical", 7, 3, 1, 1),
    Sketcher.Constraint("Radius", 1, Q("3 mm")),
    Sketcher.Constraint("DistanceY", 0, 2, 0, 1, Q("30.8 mm")),
    Sketcher.Constraint("DistanceY", 2, 2, -1, 1, Q("15 mm")),
    Sketcher.Constraint("DistanceX", -1, 1, 1, 3, Q("37.8 mm")),
])
sketch9.setExpression("Constraints[18]", "Params.sketch9_radius")
sketch9.setExpression("Constraints[19]", "Params.sketch9_height")
pad4 = body.newObject("PartDesign::Pad", "Pad003")
pad4.Profile = sketch9
pad4.setExpression("Length", "Params.pad4_length")

# Sketch on XZ plane
sketch10 = body.newObject("Sketcher::SketchObject", "Sketch009")
sketch10.AttachmentSupport = (doc.getObject("XZ_Plane"), [""])
sketch10.MapMode = "FlatFace"
sketch10.AttachmentOffset = App.Placement(App.Vector(0, 0, -25), App.Rotation())
sketch10.addGeometry([
    Part.LineSegment(App.Vector(50.8, -50.8, 0), App.Vector(35.8, -50.8, 0)),  # 0
    Part.LineSegment(App.Vector(35.8, -50.8, 0), App.Vector(35.8, -15, 0)),  # 1
    Part.LineSegment(App.Vector(35.8, -15, 0), App.Vector(50.8, -15, 0)),  # 2
    Part.LineSegment(App.Vector(50.8, -15, 0), App.Vector(50.8, -20.6, 0)),  # 3
    Part.LineSegment(App.Vector(50.8, -20.6, 0), App.Vector(48.882843, -20.6, 0)),  # 4
    Part.LineSegment(App.Vector(48.882843, -20.6, 0), App.Vector(45.8, -17.517157, 0)),  # 5
    Part.LineSegment(App.Vector(45.8, -17.517157, 0), App.Vector(42.6, -20.717157, 0)),  # 6
    Part.LineSegment(App.Vector(42.6, -20.717157, 0), App.Vector(42.6, -30.882843, 0)),  # 7
    Part.LineSegment(App.Vector(42.6, -30.882843, 0), App.Vector(45.8, -34.082843, 0)),  # 8
    Part.LineSegment(App.Vector(45.8, -34.082843, 0), App.Vector(48.882843, -31, 0)),  # 9
    Part.LineSegment(App.Vector(48.882843, -31, 0), App.Vector(50.8, -31, 0)),  # 10
    Part.LineSegment(App.Vector(50.8, -31, 0), App.Vector(50.8, -50.8, 0)),  # 11
    Part.LineSegment(App.Vector(21.95, 48.8, 0), App.Vector(21.95, 50.8, 0)),  # 12
    Part.LineSegment(App.Vector(21.95, 50.8, 0), App.Vector(50.8, 50.8, 0)),  # 13
    Part.LineSegment(App.Vector(50.8, 50.8, 0), App.Vector(50.8, 31, 0)),  # 14
    Part.LineSegment(App.Vector(50.8, 31, 0), App.Vector(48.882843, 31, 0)),  # 15
    Part.LineSegment(App.Vector(48.882843, 31, 0), App.Vector(45.8, 34.082843, 0)),  # 16
    Part.LineSegment(App.Vector(45.8, 34.082843, 0), App.Vector(42.6, 30.882843, 0)),  # 17
    Part.LineSegment(App.Vector(42.6, 30.882843, 0), App.Vector(42.6, 20.717157, 0)),  # 18
    Part.LineSegment(App.Vector(42.6, 20.717157, 0), App.Vector(45.8, 17.517157, 0)),  # 19
    Part.LineSegment(App.Vector(45.8, 17.517157, 0), App.Vector(48.882843, 20.6, 0)),  # 20
    Part.LineSegment(App.Vector(48.882843, 20.6, 0), App.Vector(50.8, 20.6, 0)),  # 21
    Part.LineSegment(App.Vector(50.8, 20.6, 0), App.Vector(50.8, 15, 0)),  # 22
    Part.LineSegment(App.Vector(50.8, 15, 0), App.Vector(35.8, 15, 0)),  # 23
    Part.LineSegment(App.Vector(35.8, 15, 0), App.Vector(35.8, 48.8, 0)),  # 24
    Part.LineSegment(App.Vector(35.8, 48.8, 0), App.Vector(21.95, 48.8, 0)),  # 25
], False)
sketch10.addConstraint([
    Sketcher.Constraint("Coincident", 0, 2, 1, 1),
    Sketcher.Constraint("Coincident", 1, 2, 2, 1),
    Sketcher.Constraint("Coincident", 2, 2, 3, 1),
    Sketcher.Constraint("Coincident", 3, 2, 4, 1),
    Sketcher.Constraint("Coincident", 4, 2, 5, 1),
    Sketcher.Constraint("Coincident", 5, 2, 6, 1),
    Sketcher.Constraint("Coincident", 6, 2, 7, 1),
    Sketcher.Constraint("Coincident", 7, 2, 8, 1),
    Sketcher.Constraint("Coincident", 8, 2, 9, 1),
    Sketcher.Constraint("Coincident", 9, 2, 10, 1),
    Sketcher.Constraint("Coincident", 10, 2, 11, 1),
    Sketcher.Constraint("Coincident", 11, 2, 0, 1),
    Sketcher.Constraint("Coincident", 12, 2, 13, 1),
    Sketcher.Constraint("Coincident", 13, 2, 14, 1),
    Sketcher.Constraint("Coincident", 14, 2, 15, 1),
    Sketcher.Constraint("Coincident", 15, 2, 16, 1),
    Sketcher.Constraint("Coincident", 16, 2, 17, 1),
    Sketcher.Constraint("Coincident", 17, 2, 18, 1),
    Sketcher.Constraint("Coincident", 18, 2, 19, 1),
    Sketcher.Constraint("Coincident", 19, 2, 20, 1),
    Sketcher.Constraint("Coincident", 20, 2, 21, 1),
    Sketcher.Constraint("Coincident", 21, 2, 22, 1),
    Sketcher.Constraint("Coincident", 22, 2, 23, 1),
    Sketcher.Constraint("Coincident", 23, 2, 24, 1),
    Sketcher.Constraint("Coincident", 24, 2, 25, 1),
    Sketcher.Constraint("Coincident", 25, 2, 12, 1),
    Sketcher.Constraint("Horizontal", 0),
    Sketcher.Constraint("Vertical", 1),
    Sketcher.Constraint("Horizontal", 2),
    Sketcher.Constraint("Vertical", 3),
    Sketcher.Constraint("Horizontal", 4),
    Sketcher.Constraint("Vertical", 7),
    Sketcher.Constraint("Horizontal", 10),
    Sketcher.Constraint("Vertical", 11),
    Sketcher.Constraint("Vertical", 12),
    Sketcher.Constraint("Horizontal", 13),
    Sketcher.Constraint("Vertical", 14),
    Sketcher.Constraint("Horizontal", 15),
    Sketcher.Constraint("Vertical", 18),
    Sketcher.Constraint("Horizontal", 21),
    Sketcher.Constraint("Vertical", 22),
    Sketcher.Constraint("Horizontal", 23),
    Sketcher.Constraint("Vertical", 24),
    Sketcher.Constraint("Horizontal", 25),
    Sketcher.Constraint("Symmetric", 11, 2, 13, 2, -1),
    Sketcher.Constraint("Symmetric", 9, 2, 15, 2, -1),
    Sketcher.Constraint("Symmetric", 8, 2, 16, 2, -1),
    Sketcher.Constraint("Symmetric", 7, 2, 17, 2, -1),
    Sketcher.Constraint("Symmetric", 5, 2, 19, 2, -1),
    Sketcher.Constraint("Symmetric", 4, 2, 20, 2, -1),
    Sketcher.Constraint("Symmetric", 2, 2, 22, 2, -1),
    Sketcher.Constraint("Perpendicular", 5, 6),
    Sketcher.Constraint("Perpendicular", 6, 8),
    Sketcher.Constraint("Perpendicular", 8, 9),
    Sketcher.Constraint("Perpendicular", 9, 16),
    Sketcher.Constraint("Perpendicular", 17, 19),
    Sketcher.Constraint("Vertical", 5, 2, 8, 2),
    Sketcher.Constraint("Vertical", 4, 2, 9, 2),
    Sketcher.Constraint("Vertical", 3, 2, 10, 2),
    Sketcher.Constraint("Vertical", 1, 2, 23, 2),
    Sketcher.Constraint("DistanceX", 0, 2, 0, 1, Q("15 mm")),
    Sketcher.Constraint("DistanceY", 12, 1, 12, 2, Q("2 mm")),
    Sketcher.Constraint("DistanceY", 1, 1, 1, 2, Q("35.8 mm")),
    Sketcher.Constraint("DistanceY", 3, 2, 3, 1, Q("5.6 mm")),
    Sketcher.Constraint("DistanceY", 11, 2, 11, 1, Q("19.8 mm")),
    Sketcher.Constraint("DistanceY", 1, 2, -1, 1, Q("15 mm")),
    Sketcher.Constraint("DistanceX", 5, 2, 2, 2, Q("5 mm")),
    Sketcher.Constraint("DistanceX", 13, 1, 13, 2, Q("28.85 mm")),
    Sketcher.Constraint("DistanceX", -1, 1, 0, 2, Q("35.8 mm")),
    Sketcher.Constraint("DistanceX", -1, 1, 6, 2, Q("42.6 mm")),
    Sketcher.Constraint("DistanceX", 4, 2, 4, 1, Q("1.917157 mm")),
])
sketch10.setExpression("Constraints[60]", "Params.sketch10_width")
sketch10.setExpression("Constraints[61]", "Params.sketch10_height")
sketch10.setExpression("Constraints[62]", "Params.sketch10_height2")
sketch10.setExpression("Constraints[63]", "Params.sketch10_height3")
sketch10.setExpression("Constraints[64]", "Params.sketch10_height4")
pad5 = body.newObject("PartDesign::Pad", "Pad004")
pad5.Profile = sketch10
pad5.setExpression("Length", "Params.pad5_length")
pad5.Reversed = True
doc.recompute()

fillet3 = body.newObject("PartDesign::Fillet", "Fillet002")
fillet3.Base = (pad5, edges_at(pad5, [(35.8, 26, 48.8)]))
fillet3.setExpression("Radius", "Params.fillet3_radius")
doc.recompute()

mirrored = body.newObject("PartDesign::Mirrored", "Mirrored")
mirrored.Originals = [pad4, pad5]
mirrored.MirrorPlane = (doc.getObject("YZ_Plane"), [""])
body.Tip = mirrored
doc.recompute()

fillet4 = body.newObject("PartDesign::Fillet", "Fillet003")
fillet4.Base = (mirrored, edges_at(mirrored, [(-35.8, 26, 48.8)]))
fillet4.setExpression("Radius", "Params.fillet4_radius")
doc.recompute()

fillet5 = body.newObject("PartDesign::Fillet", "Fillet004")
fillet5.Base = (fillet4, edges_at(fillet4, [(0, 0, -50.8)]))
fillet5.setExpression("Radius", "Params.fillet5_radius")

doc.recompute()
